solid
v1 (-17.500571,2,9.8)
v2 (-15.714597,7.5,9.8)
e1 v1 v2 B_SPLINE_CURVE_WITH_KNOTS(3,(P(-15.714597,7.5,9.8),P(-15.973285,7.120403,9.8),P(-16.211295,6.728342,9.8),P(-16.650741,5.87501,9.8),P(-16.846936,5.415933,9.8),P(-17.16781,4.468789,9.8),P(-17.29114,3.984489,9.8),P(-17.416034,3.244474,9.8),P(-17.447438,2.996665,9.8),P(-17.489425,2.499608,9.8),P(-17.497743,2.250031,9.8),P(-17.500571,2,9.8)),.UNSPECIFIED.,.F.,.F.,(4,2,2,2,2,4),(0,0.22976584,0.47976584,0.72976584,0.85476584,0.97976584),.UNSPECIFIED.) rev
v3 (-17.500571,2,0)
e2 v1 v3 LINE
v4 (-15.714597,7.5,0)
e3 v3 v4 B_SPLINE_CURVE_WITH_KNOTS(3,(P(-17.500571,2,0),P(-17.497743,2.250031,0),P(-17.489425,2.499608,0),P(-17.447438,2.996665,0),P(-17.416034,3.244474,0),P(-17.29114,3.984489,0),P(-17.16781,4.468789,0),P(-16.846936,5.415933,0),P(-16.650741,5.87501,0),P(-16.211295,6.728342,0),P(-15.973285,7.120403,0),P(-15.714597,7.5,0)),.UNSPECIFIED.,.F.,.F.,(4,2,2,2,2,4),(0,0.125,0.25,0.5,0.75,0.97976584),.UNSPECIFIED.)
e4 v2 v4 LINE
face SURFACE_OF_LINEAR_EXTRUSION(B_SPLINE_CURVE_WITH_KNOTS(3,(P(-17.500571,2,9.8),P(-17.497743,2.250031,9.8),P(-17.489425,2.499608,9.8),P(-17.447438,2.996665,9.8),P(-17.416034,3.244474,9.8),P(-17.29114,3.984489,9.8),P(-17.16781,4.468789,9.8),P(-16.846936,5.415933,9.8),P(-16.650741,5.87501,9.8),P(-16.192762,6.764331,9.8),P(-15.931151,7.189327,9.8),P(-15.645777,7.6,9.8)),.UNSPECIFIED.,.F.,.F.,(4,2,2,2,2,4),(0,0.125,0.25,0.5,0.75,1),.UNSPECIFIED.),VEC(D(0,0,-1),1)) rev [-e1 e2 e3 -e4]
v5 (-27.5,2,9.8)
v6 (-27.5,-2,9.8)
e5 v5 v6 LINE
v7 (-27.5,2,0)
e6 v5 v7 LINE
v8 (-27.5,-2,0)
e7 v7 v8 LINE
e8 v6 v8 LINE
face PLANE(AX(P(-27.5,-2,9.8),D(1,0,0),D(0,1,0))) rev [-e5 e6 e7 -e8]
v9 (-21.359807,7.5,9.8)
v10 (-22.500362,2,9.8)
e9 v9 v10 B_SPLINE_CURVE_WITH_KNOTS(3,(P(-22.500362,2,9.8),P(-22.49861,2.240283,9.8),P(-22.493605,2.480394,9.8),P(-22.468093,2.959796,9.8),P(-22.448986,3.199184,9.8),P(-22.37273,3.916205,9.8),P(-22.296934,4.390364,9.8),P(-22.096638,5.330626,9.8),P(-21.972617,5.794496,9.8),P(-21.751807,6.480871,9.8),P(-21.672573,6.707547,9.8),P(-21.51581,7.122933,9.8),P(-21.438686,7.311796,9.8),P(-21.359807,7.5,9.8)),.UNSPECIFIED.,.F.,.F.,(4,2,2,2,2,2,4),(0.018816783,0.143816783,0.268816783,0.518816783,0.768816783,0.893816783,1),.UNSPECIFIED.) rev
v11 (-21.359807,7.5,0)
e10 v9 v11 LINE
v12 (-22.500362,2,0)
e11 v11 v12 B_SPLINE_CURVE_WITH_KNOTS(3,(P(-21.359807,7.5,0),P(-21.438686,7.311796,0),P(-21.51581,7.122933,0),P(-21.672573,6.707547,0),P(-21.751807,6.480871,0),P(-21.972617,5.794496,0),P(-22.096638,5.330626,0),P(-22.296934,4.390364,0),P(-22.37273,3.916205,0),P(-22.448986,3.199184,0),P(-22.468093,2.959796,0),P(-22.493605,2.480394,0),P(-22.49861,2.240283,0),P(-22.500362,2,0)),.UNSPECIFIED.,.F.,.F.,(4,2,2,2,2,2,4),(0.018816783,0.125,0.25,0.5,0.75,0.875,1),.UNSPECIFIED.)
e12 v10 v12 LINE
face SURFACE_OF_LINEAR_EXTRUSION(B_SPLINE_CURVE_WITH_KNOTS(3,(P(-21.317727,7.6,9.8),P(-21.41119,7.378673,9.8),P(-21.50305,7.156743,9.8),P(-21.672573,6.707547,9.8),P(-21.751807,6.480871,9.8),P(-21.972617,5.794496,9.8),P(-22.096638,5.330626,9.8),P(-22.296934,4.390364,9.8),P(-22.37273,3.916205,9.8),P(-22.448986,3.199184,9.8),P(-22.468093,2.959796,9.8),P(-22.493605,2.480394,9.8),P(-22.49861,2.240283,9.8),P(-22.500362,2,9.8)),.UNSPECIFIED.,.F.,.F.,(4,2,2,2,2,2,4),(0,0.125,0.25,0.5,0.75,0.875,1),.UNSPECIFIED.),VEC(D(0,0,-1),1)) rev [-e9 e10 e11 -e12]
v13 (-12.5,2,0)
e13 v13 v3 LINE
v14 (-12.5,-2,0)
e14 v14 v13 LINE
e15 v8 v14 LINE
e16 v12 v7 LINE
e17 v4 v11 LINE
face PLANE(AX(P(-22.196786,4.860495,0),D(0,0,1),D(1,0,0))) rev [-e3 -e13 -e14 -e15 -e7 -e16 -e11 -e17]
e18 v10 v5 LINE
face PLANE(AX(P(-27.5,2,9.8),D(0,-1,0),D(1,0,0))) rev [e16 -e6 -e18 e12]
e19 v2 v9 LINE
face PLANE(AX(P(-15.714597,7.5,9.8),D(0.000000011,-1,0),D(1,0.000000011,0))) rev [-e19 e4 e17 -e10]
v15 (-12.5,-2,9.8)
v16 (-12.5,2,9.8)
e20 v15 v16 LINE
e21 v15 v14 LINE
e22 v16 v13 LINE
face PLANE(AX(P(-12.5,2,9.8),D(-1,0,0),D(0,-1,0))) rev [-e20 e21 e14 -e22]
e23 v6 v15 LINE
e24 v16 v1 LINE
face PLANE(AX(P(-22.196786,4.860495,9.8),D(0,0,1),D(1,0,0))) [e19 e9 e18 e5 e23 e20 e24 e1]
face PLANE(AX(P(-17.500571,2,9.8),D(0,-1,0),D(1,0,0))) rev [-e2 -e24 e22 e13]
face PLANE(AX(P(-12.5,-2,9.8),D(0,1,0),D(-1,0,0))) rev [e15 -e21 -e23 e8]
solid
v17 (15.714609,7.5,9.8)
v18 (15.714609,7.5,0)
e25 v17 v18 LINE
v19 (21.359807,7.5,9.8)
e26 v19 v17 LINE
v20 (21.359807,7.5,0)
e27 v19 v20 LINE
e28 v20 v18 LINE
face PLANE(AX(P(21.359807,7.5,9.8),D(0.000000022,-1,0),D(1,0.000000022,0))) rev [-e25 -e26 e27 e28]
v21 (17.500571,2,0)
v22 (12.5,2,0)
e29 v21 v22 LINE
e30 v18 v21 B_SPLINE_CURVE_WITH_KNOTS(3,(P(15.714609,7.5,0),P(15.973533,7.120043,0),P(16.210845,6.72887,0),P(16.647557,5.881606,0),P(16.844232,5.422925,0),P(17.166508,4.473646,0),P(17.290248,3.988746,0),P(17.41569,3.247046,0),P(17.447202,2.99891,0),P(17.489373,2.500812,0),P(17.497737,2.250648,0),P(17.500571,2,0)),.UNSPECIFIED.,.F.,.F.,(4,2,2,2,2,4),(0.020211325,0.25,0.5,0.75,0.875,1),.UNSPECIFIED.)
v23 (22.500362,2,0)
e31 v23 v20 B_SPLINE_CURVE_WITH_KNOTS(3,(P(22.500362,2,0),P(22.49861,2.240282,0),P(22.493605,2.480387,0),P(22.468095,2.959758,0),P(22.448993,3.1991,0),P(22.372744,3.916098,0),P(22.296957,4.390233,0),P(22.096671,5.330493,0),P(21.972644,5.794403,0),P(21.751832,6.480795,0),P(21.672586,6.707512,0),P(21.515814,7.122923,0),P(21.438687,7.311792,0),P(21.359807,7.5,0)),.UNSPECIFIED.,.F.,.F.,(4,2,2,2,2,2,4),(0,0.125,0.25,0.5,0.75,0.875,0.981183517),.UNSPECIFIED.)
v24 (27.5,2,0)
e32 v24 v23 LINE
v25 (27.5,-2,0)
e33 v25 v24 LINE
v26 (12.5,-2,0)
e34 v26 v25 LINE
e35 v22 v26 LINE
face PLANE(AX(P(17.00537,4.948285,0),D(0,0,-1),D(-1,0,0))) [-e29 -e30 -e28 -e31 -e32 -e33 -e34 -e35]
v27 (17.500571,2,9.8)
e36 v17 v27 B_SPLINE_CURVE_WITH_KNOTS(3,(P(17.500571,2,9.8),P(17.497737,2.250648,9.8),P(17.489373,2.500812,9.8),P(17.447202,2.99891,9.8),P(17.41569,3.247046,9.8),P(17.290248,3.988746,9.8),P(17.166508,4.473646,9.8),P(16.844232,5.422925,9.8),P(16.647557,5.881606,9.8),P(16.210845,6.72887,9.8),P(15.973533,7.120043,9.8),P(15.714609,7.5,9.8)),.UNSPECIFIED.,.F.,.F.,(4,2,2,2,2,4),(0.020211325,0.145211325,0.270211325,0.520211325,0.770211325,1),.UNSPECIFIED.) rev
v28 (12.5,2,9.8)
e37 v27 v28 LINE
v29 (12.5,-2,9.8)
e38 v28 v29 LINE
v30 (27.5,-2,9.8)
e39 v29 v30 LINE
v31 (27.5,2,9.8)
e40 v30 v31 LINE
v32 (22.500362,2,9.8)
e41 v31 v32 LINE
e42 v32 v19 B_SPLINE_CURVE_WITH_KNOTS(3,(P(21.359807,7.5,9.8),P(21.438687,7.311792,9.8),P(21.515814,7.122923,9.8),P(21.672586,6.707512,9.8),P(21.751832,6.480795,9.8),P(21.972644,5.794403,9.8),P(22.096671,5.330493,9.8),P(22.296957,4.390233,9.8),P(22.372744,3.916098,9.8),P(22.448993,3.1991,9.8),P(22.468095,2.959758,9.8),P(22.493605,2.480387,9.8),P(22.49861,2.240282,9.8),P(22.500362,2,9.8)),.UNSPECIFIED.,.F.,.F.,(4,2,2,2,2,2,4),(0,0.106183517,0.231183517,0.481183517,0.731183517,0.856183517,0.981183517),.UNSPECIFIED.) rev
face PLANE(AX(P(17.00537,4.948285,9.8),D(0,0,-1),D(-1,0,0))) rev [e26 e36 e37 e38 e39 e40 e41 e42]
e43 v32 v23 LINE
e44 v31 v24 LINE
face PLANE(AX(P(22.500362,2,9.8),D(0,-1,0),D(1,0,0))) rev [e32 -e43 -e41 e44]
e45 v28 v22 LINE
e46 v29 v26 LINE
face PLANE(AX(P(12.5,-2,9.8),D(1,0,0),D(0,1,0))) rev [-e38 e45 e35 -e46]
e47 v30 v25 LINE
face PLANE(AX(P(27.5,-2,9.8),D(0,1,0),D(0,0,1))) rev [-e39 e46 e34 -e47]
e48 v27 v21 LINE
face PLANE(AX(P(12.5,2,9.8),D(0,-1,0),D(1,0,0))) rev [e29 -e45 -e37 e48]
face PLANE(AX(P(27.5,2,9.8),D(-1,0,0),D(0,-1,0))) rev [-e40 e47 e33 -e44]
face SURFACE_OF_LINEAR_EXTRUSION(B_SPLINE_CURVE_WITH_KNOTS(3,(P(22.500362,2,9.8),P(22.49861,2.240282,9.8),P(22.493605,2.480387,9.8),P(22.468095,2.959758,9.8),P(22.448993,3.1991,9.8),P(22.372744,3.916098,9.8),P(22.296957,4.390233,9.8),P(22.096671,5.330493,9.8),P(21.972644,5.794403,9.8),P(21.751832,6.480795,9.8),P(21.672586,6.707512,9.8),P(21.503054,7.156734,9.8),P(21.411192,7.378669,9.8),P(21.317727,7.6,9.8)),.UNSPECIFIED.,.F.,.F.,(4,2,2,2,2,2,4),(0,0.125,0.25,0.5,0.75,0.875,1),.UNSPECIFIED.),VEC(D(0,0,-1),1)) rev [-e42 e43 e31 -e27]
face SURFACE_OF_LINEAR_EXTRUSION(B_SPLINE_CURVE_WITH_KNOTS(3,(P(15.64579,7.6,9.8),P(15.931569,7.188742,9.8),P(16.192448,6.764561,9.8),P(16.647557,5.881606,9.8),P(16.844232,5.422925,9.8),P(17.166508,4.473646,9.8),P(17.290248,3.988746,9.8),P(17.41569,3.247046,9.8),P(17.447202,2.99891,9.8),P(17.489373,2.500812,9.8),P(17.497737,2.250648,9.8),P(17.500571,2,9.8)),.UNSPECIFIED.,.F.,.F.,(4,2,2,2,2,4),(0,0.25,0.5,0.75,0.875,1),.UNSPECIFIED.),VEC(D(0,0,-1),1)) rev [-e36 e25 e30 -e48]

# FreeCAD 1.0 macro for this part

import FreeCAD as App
import Part
import Sketcher
from FreeCAD import Vector
Q = App.Units.Quantity

doc = App.newDocument("Part")
body = doc.addObject("PartDesign::Body", "Body")

sketch1 = body.newObject("Sketcher::SketchObject", "Sketch")
sketch1.AttachmentSupport = (doc.getObject("XY_Plane"), [""])
sketch1.MapMode = "FlatFace"
sketch1.addGeometry(Part.LineSegment(Vector(21.359807, 7.5, 0), Vector(15.714609, 7.5, 0)), False)
sketch1.addGeometry(Part.BSplineCurve([Vector(17.500571, 2, 0), Vector(17.497737, 2.250648, 0), Vector(17.489373, 2.500812, 0), Vector(17.447202, 2.99891, 0), Vector(17.41569, 3.247046, 0), Vector(17.290248, 3.988746, 0), Vector(17.166508, 4.473646, 0), Vector(16.844232, 5.422925, 0), Vector(16.647557, 5.881606, 0), Vector(16.210845, 6.72887, 0), Vector(15.973533, 7.120043, 0), Vector(15.714609, 7.5, 0)], [4, 2, 2, 2, 2, 4], [0, 0.125, 0.25, 0.5, 0.75, 0.979788675], False, 3, [1, 1, 1, 1, 1, 1, 1, 1, 1, 1, 1, 1], False), False)
sketch1.addGeometry(Part.LineSegment(Vector(17.500571, 2, 0), Vector(12.5, 2, 0)), False)
sketch1.addGeometry(Part.LineSegment(Vector(12.5, 2, 0), Vector(12.5, -2, 0)), False)
sketch1.addGeometry(Part.LineSegment(Vector(12.5, -2, 0), Vector(27.5, -2, 0)), False)
sketch1.addGeometry(Part.LineSegment(Vector(27.5, -2, 0), Vector(27.5, 2, 0)), False)
sketch1.addGeometry(Part.LineSegment(Vector(27.5, 2, 0), Vector(22.500362, 2, 0)), False)
sketch1.addGeometry(Part.BSplineCurve([Vector(21.359807, 7.5, 0), Vector(21.438687, 7.311792, 0), Vector(21.515814, 7.122923, 0), Vector(21.672586, 6.707512, 0), Vector(21.751832, 6.480795, 0), Vector(21.972644, 5.794403, 0), Vector(22.096671, 5.330493, 0), Vector(22.296957, 4.390233, 0), Vector(22.372744, 3.916098, 0), Vector(22.448993, 3.1991, 0), Vector(22.468095, 2.959758, 0), Vector(22.493605, 2.480387, 0), Vector(22.49861, 2.240282, 0), Vector(22.500362, 2, 0)], [4, 2, 2, 2, 2, 2, 4], [0.018816483, 0.125, 0.25, 0.5, 0.75, 0.875, 1], False, 3, [1, 1, 1, 1, 1, 1, 1, 1, 1, 1, 1, 1, 1, 1], False), False)
sketch1.addConstraint(Sketcher.Constraint("Block", 1))
sketch1.addConstraint(Sketcher.Constraint("Block", 7))
sketch1.addConstraint(Sketcher.Constraint("Coincident", 0, 2, 1, 2))
sketch1.addConstraint(Sketcher.Constraint("Coincident", 1, 1, 2, 1))
sketch1.addConstraint(Sketcher.Constraint("Coincident", 2, 2, 3, 1))
sketch1.addConstraint(Sketcher.Constraint("Coincident", 3, 2, 4, 1))
sketch1.addConstraint(Sketcher.Constraint("Coincident", 4, 2, 5, 1))
sketch1.addConstraint(Sketcher.Constraint("Coincident", 5, 2, 6, 1))
sketch1.addConstraint(Sketcher.Constraint("Coincident", 6, 2, 7, 2))
sketch1.addConstraint(Sketcher.Constraint("Coincident", 7, 1, 0, 1))
sketch1.addConstraint(Sketcher.Constraint("Horizontal", 2))
sketch1.addConstraint(Sketcher.Constraint("Vertical", 3))
sketch1.addConstraint(Sketcher.Constraint("Horizontal", 4))
sketch1.addConstraint(Sketcher.Constraint("Vertical", 5))
sketch1.addConstraint(Sketcher.Constraint("Horizontal", 6))
sketch1.addConstraint(Sketcher.Constraint("DistanceX", 4, 1, 4, 2, Q("15 mm")))
sketch1.addConstraint(Sketcher.Constraint("DistanceY", 3, 2, 3, 1, Q("4 mm")))
sketch1.addConstraint(Sketcher.Constraint("DistanceX", -1, 1, 2, 2, Q("12.5 mm")))
pad1 = body.newObject("PartDesign::Pad", "Pad")
pad1.Profile = sketch1
pad1.Length = 9.8
body2 = doc.addObject("PartDesign::Body", "Body001")

sketch2 = body2.newObject("Sketcher::SketchObject", "Sketch001")
sketch2.AttachmentSupport = (doc.getObject("XY_Plane001"), [""])
sketch2.MapMode = "FlatFace"
sketch2.addGeometry(Part.LineSegment(Vector(-15.714597, 7.5, 0), Vector(-21.359807, 7.5, 0)), False)
sketch2.addGeometry(Part.BSplineCurve([Vector(-22.500362, 2, 0), Vector(-22.49861, 2.240283, 0), Vector(-22.493605, 2.480394, 0), Vector(-22.468093, 2.959796, 0), Vector(-22.448986, 3.199184, 0), Vector(-22.37273, 3.916205, 0), Vector(-22.296934, 4.390364, 0), Vector(-22.096638, 5.330626, 0), Vector(-21.972617, 5.794496, 0), Vector(-21.751807, 6.480871, 0), Vector(-21.672573, 6.707547, 0), Vector(-21.51581, 7.122933, 0), Vector(-21.438686, 7.311796, 0), Vector(-21.359807, 7.5, 0)], [4, 2, 2, 2, 2, 2, 4], [0, 0.125, 0.25, 0.5, 0.75, 0.875, 0.981183217], False, 3, [1, 1, 1, 1, 1, 1, 1, 1, 1, 1, 1, 1, 1, 1], False), False)
sketch2.addGeometry(Part.LineSegment(Vector(-22.500362, 2, 0), Vector(-27.5, 2, 0)), False)
sketch2.addGeometry(Part.LineSegment(Vector(-27.5, 2, 0), Vector(-27.5, -2, 0)), False)
sketch2.addGeometry(Part.LineSegment(Vector(-27.5, -2, 0), Vector(-12.5, -2, 0)), False)
sketch2.addGeometry(Part.LineSegment(Vector(-12.5, -2, 0), Vector(-12.5, 2, 0)), False)
sketch2.addGeometry(Part.LineSegment(Vector(-12.5, 2, 0), Vector(-17.500571, 2, 0)), False)
sketch2.addGeometry(Part.BSplineCurve([Vector(-15.714597, 7.5, 0), Vector(-15.973285, 7.120403, 0), Vector(-16.211295, 6.728342, 0), Vector(-16.650741, 5.87501, 0), Vector(-16.846936, 5.415933, 0), Vector(-17.16781, 4.468789, 0), Vector(-17.29114, 3.984489, 0), Vector(-17.416034, 3.244474, 0), Vector(-17.447438, 2.996665, 0), Vector(-17.489425, 2.499608, 0), Vector(-17.497743, 2.250031, 0), Vector(-17.500571, 2, 0)], [4, 2, 2, 2, 2, 4], [0.02023416, 0.25, 0.5, 0.75, 0.875, 1], False, 3, [1, 1, 1, 1, 1, 1, 1, 1, 1, 1, 1, 1], False), False)
sketch2.addConstraint(Sketcher.Constraint("Block", 1))
sketch2.addConstraint(Sketcher.Constraint("Block", 7))
sketch2.addConstraint(Sketcher.Constraint("Coincident", 0, 2, 1, 2))
sketch2.addConstraint(Sketcher.Constraint("Coincident", 1, 1, 2, 1))
sketch2.addConstraint(Sketcher.Constraint("Coincident", 2, 2, 3, 1))
sketch2.addConstraint(Sketcher.Constraint("Coincident", 3, 2, 4, 1))
sketch2.addConstraint(Sketcher.Constraint("Coincident", 4, 2, 5, 1))
sketch2.addConstraint(Sketcher.Constraint("Coincident", 5, 2, 6, 1))
sketch2.addConstraint(Sketcher.Constraint("Coincident", 6, 2, 7, 2))
sketch2.addConstraint(Sketcher.Constraint("Coincident", 7, 1, 0, 1))
sketch2.addConstraint(Sketcher.Constraint("Horizontal", 2))
sketch2.addConstraint(Sketcher.Constraint("Vertical", 3))
sketch2.addConstraint(Sketcher.Constraint("Horizontal", 4))
sketch2.addConstraint(Sketcher.Constraint("Vertical", 5))
sketch2.addConstraint(Sketcher.Constraint("Horizontal", 6))
sketch2.addConstraint(Sketcher.Constraint("DistanceX", 4, 1, 4, 2, Q("15 mm")))
sketch2.addConstraint(Sketcher.Constraint("DistanceY", 3, 2, 3, 1, Q("4 mm")))
sketch2.addConstraint(Sketcher.Constraint("DistanceX", 2, 2, -1, 1, Q("27.5 mm")))
pad2 = body2.newObject("PartDesign::Pad", "Pad001")
pad2.Profile = sketch2
pad2.Length = 9.8

doc.recompute()
